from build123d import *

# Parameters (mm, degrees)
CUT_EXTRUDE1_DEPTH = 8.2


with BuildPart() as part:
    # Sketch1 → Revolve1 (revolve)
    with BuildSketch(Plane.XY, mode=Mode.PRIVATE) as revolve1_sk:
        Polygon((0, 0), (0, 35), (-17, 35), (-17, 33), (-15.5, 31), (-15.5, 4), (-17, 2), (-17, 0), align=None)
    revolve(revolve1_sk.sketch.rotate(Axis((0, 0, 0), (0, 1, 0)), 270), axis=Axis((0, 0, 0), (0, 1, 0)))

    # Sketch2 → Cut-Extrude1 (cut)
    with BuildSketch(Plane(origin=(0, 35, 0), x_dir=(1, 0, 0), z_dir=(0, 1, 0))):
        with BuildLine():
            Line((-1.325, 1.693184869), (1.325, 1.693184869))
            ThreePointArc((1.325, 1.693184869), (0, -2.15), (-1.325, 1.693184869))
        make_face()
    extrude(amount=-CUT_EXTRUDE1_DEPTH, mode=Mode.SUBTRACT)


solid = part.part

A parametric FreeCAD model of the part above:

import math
import FreeCAD as App
import Part
import Sketcher
Q = App.Units.Quantity


def add_polygon(sketch, points):
    """Adds a closed chain of lines whose ends are joined by coincident constraints."""
    first, n = sketch.GeometryCount, len(points)
    for a, b in zip(points, points[1:] + points[:1]):
        sketch.addGeometry(Part.LineSegment(App.Vector(*a, 0), App.Vector(*b, 0)), False)
    for i in range(n):
        sketch.addConstraint(Sketcher.Constraint("Coincident", first + i, 2, first + (i + 1) % n, 1))

doc = App.newDocument("Part")
body = doc.addObject("PartDesign::Body", "Body")

sketch1 = body.newObject("Sketcher::SketchObject", "Sketch")
sketch1.AttachmentSupport = (doc.getObject("XY_Plane"), [""])
sketch1.MapMode = "FlatFace"
add_polygon(sketch1, [(0, 0), (0, 35), (-17, 35), (-17, 33), (-15.5, 31), (-15.5, 4), (-17, 2), (-17, 0)])
sketch1.addConstraint(Sketcher.Constraint("Vertical", 0))
sketch1.addConstraint(Sketcher.Constraint("Horizontal", 1))
sketch1.addConstraint(Sketcher.Constraint("Vertical", 2))
sketch1.addConstraint(Sketcher.Constraint("Vertical", 4))
sketch1.addConstraint(Sketcher.Constraint("Vertical", 6))
sketch1.addConstraint(Sketcher.Constraint("Horizontal", 7))
sketch1.addConstraint(Sketcher.Constraint("Coincident", 7, 2, -1, 1))
sketch1.addConstraint(Sketcher.Constraint("Vertical", 2, 2, 5, 2))
sketch1.addConstraint(Sketcher.Constraint("Equal", 2, 6))
sketch1.addConstraint(Sketcher.Constraint("Equal", 3, 5))
sketch1.addConstraint(Sketcher.Constraint("DistanceX", 1, 2, 1, 1, Q("17 mm")))
sketch1.addConstraint(Sketcher.Constraint("DistanceY", 0, 1, 0, 2, Q("35 mm")))
sketch1.addConstraint(Sketcher.Constraint("DistanceY", 2, 2, 2, 1, Q("2 mm")))
sketch1.addConstraint(Sketcher.Constraint("DistanceY", 4, 2, 4, 1, Q("27 mm")))
sketch1.addConstraint(Sketcher.Constraint("Distance", 3, Q("2.5 mm")))
revolution = body.newObject("PartDesign::Revolution", "Revolution")
revolution.Profile = sketch1
revolution.ReferenceAxis = (sketch1, ["V_Axis"])
revolution.Angle = 360

sketch2 = body.newObject("Sketcher::SketchObject", "Sketch001")
sketch2.AttachmentSupport = (doc.getObject("XZ_Plane"), [""])
sketch2.MapMode = "FlatFace"
sketch2.AttachmentOffset = App.Placement(App.Vector(0, 0, -35), App.Rotation())
sketch2.addGeometry(Part.LineSegment(App.Vector(1.3, -1.7, 0), App.Vector(-1.3, -1.7, 0)), False)
sketch2.addGeometry(Part.ArcOfCircle(Part.Circle(App.Vector(0, 0, 0), App.Vector(0, 0, 1), 2.1), math.radians(-52), math.radians(232)), False)
sketch2.addConstraint(Sketcher.Constraint("Coincident", 0, 1, 1, 1))
sketch2.addConstraint(Sketcher.Constraint("Coincident", 1, 2, 0, 2))
sketch2.addConstraint(Sketcher.Constraint("Horizontal", 0))
sketch2.addConstraint(Sketcher.Constraint("Coincident", 1, 3, -1, 1))
sketch2.addConstraint(Sketcher.Constraint("Radius", 1, Q("2.15 mm")))
sketch2.addConstraint(Sketcher.Constraint("DistanceX", 0, 2, 0, 1, Q("2.65 mm")))
pocket1 = body.newObject("PartDesign::Pocket", "Pocket")
pocket1.Profile = sketch2
pocket1.Length = 8.2
pocket1.Reversed = True

doc.recompute()
